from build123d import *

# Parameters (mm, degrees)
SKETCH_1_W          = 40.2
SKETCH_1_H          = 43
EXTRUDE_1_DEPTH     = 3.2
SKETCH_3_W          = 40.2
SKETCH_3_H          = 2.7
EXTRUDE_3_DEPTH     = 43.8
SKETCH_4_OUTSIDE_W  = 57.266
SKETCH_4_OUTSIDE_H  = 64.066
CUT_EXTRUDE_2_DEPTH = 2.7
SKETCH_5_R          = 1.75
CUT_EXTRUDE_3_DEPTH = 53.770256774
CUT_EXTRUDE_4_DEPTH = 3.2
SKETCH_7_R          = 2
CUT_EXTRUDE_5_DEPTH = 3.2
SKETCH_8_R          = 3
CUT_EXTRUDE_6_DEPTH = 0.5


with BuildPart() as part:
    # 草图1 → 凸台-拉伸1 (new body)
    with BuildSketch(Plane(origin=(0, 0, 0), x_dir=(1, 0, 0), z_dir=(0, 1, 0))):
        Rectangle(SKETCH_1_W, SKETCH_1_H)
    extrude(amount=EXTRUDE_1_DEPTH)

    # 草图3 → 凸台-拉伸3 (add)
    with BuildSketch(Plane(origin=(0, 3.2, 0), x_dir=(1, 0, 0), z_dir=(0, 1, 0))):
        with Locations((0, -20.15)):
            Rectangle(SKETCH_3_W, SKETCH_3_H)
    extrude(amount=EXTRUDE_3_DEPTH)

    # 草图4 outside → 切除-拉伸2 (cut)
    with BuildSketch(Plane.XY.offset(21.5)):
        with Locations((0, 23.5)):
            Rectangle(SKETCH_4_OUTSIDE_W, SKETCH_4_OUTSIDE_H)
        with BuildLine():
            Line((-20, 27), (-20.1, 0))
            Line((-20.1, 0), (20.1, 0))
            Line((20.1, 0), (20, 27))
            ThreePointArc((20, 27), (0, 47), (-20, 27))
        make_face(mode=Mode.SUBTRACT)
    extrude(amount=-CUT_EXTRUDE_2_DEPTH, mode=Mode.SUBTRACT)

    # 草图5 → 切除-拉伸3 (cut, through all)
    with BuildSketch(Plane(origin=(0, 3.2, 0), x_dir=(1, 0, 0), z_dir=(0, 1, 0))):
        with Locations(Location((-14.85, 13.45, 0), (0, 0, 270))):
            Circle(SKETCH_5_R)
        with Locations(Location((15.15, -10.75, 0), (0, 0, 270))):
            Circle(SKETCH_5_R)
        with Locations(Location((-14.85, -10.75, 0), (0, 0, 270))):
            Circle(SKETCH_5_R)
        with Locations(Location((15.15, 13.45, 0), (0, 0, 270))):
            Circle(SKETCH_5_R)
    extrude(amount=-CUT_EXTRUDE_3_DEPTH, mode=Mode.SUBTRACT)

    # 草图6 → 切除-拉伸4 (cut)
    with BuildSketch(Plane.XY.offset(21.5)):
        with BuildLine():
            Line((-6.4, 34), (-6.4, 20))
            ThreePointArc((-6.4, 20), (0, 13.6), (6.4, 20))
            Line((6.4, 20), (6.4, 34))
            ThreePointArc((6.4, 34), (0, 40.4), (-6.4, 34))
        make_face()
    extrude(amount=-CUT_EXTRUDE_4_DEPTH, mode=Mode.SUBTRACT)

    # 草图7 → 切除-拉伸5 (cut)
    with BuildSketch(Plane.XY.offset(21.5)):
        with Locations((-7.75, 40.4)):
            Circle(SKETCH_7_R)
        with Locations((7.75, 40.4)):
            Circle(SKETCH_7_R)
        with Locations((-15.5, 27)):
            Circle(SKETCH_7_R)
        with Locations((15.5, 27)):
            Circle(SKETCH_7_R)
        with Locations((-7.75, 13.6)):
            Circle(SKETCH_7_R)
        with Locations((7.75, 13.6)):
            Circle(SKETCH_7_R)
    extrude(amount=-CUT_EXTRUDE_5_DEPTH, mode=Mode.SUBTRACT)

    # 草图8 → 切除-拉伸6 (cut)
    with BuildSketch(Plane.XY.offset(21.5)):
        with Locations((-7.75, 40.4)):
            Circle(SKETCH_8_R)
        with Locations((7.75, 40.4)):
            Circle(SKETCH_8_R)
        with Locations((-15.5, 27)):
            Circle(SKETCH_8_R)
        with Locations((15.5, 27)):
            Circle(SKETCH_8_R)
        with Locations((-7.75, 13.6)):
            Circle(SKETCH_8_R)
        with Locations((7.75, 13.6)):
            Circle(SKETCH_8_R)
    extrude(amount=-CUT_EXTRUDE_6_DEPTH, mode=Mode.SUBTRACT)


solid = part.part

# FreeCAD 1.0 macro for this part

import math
import FreeCAD as App
import Part
import Sketcher

V = App.Vector
Q = App.Units.Quantity


def add_polygon(sketch, points):
    """Adds a closed chain of lines whose ends are joined by coincident constraints."""
    first, n = sketch.GeometryCount, len(points)
    for a, b in zip(points, points[1:] + points[:1]):
        sketch.addGeometry(Part.LineSegment(App.Vector(*a, 0), App.Vector(*b, 0)), False)
    for i in range(n):
        sketch.addConstraint(Sketcher.Constraint("Coincident", first + i, 2, first + (i + 1) % n, 1))

doc = App.newDocument("Part")
body = doc.addObject("PartDesign::Body", "Body")

# Sketch on XZ plane
sketch1 = body.newObject("Sketcher::SketchObject", "Sketch")
sketch1.AttachmentSupport = (doc.getObject("XZ_Plane"), [""])
sketch1.MapMode = "FlatFace"
add_polygon(sketch1, [(-20.1, -21.5), (-20.1, 21.5), (20.1, 21.5), (20.1, -21.5)])  # lines 0-3
sketch1.addConstraint(Sketcher.Constraint("Vertical", 0))
sketch1.addConstraint(Sketcher.Constraint("Horizontal", 1))
sketch1.addConstraint(Sketcher.Constraint("Vertical", 2))
sketch1.addConstraint(Sketcher.Constraint("Horizontal", 3))
sketch1.addConstraint(Sketcher.Constraint("Symmetric", 0, 2, 2, 2, -1, 1))
sketch1.addConstraint(Sketcher.Constraint("DistanceY", 0, 1, 0, 2, Q("43 mm")))
sketch1.addConstraint(Sketcher.Constraint("DistanceX", 1, 1, 1, 2, Q("40.2 mm")))
pad1 = body.newObject("PartDesign::Pad", "Pad")
pad1.Profile = sketch1
pad1.Length = 3.2
pad1.Reversed = True

# Sketch on XZ plane
sketch2 = body.newObject("Sketcher::SketchObject", "Sketch001")
sketch2.AttachmentSupport = (doc.getObject("XZ_Plane"), [""])
sketch2.MapMode = "FlatFace"
sketch2.AttachmentOffset = App.Placement(V(0, 0, -3.2), App.Rotation())
add_polygon(sketch2, [(-20.1, 18.8), (-20.1, 21.5), (20.1, 21.5), (20.1, 18.8)])  # lines 0-3
sketch2.addConstraint(Sketcher.Constraint("Vertical", 0))
sketch2.addConstraint(Sketcher.Constraint("Horizontal", 1))
sketch2.addConstraint(Sketcher.Constraint("Vertical", 2))
sketch2.addConstraint(Sketcher.Constraint("Horizontal", 3))
sketch2.addConstraint(Sketcher.Constraint("DistanceX", 1, 1, 1, 2, Q("40.2 mm")))
sketch2.addConstraint(Sketcher.Constraint("DistanceY", 0, 1, 0, 2, Q("2.7 mm")))
sketch2.addConstraint(Sketcher.Constraint("DistanceX", 0, 2, -1, 1, Q("20.1 mm")))
sketch2.addConstraint(Sketcher.Constraint("DistanceY", -1, 1, 0, 2, Q("21.5 mm")))
pad2 = body.newObject("PartDesign::Pad", "Pad001")
pad2.Profile = sketch2
pad2.Length = 43.8
pad2.Reversed = True

# Sketch on XY plane
sketch3 = body.newObject("Sketcher::SketchObject", "Sketch002")
sketch3.AttachmentSupport = (doc.getObject("XY_Plane"), [""])
sketch3.MapMode = "FlatFace"
sketch3.AttachmentOffset = App.Placement(V(0, 0, 21.5), App.Rotation())
add_polygon(sketch3, [(-28.633, 55.533), (-28.633, -8.533), (28.633, -8.533), (28.633, 55.533)])  # lines 0-3
sketch3.addGeometry(Part.LineSegment(V(-20.1, 0, 0), V(-20, 27, 0)), False)  # 4
sketch3.addGeometry(Part.ArcOfCircle(Part.Circle(V(0, 27, 0), V(0, 0, 1), 20), math.radians(0), math.radians(180)), False)  # 5
sketch3.addGeometry(Part.LineSegment(V(20, 27, 0), V(20.1, 0, 0)), False)  # 6
sketch3.addGeometry(Part.LineSegment(V(20.1, 0, 0), V(-20.1, 0, 0)), False)  # 7
sketch3.addConstraint(Sketcher.Constraint("Coincident", 4, 2, 5, 2))
sketch3.addConstraint(Sketcher.Constraint("Coincident", 5, 1, 6, 1))
sketch3.addConstraint(Sketcher.Constraint("Coincident", 6, 2, 7, 1))
sketch3.addConstraint(Sketcher.Constraint("Coincident", 7, 2, 4, 1))
sketch3.addConstraint(Sketcher.Constraint("Vertical", 0))
sketch3.addConstraint(Sketcher.Constraint("Horizontal", 1))
sketch3.addConstraint(Sketcher.Constraint("Vertical", 2))
sketch3.addConstraint(Sketcher.Constraint("Horizontal", 3))
sketch3.addConstraint(Sketcher.Constraint("Horizontal", 7))
sketch3.addConstraint(Sketcher.Constraint("Symmetric", 6, 2, 7, 2, -1, 1))
sketch3.addConstraint(Sketcher.Constraint("Symmetric", 4, 2, 5, 1, -2))
sketch3.addConstraint(Sketcher.Constraint("Horizontal", 5, 3, 4, 2))
sketch3.addConstraint(Sketcher.Constraint("Radius", 5, Q("20 mm")))
sketch3.addConstraint(Sketcher.Constraint("DistanceX", 7, 2, 7, 1, Q("40.2 mm")))
sketch3.addConstraint(Sketcher.Constraint("DistanceY", -1, 1, 5, 3, Q("27 mm")))
sketch3.addConstraint(Sketcher.Constraint("DistanceX", 1, 1, 1, 2, Q("57.266 mm")))
sketch3.addConstraint(Sketcher.Constraint("DistanceY", 0, 2, 0, 1, Q("64.066 mm")))
sketch3.addConstraint(Sketcher.Constraint("DistanceX", 0, 2, -1, 1, Q("28.633 mm")))
sketch3.addConstraint(Sketcher.Constraint("DistanceY", 0, 2, -1, 1, Q("8.533 mm")))
pocket1 = body.newObject("PartDesign::Pocket", "Pocket")
pocket1.Profile = sketch3
pocket1.Length = 2.7

# Sketch on XZ plane
sketch4 = body.newObject("Sketcher::SketchObject", "Sketch003")
sketch4.AttachmentSupport = (doc.getObject("XZ_Plane"), [""])
sketch4.MapMode = "FlatFace"
sketch4.AttachmentOffset = App.Placement(V(0, 0, -3.2), App.Rotation())
sketch4.addGeometry(Part.Circle(V(-14.85, -13.45, 0), V(0, 0, 1), 1.75), False)
sketch4.addGeometry(Part.Circle(V(15.15, 10.75, 0), V(0, 0, 1), 1.75), False)
sketch4.addGeometry(Part.Circle(V(-14.85, 10.75, 0), V(0, 0, 1), 1.75), False)
sketch4.addGeometry(Part.Circle(V(15.15, -13.45, 0), V(0, 0, 1), 1.75), False)
sketch4.addConstraint(Sketcher.Constraint("Equal", 0, 1))
sketch4.addConstraint(Sketcher.Constraint("Equal", 1, 2))
sketch4.addConstraint(Sketcher.Constraint("Equal", 2, 3))
sketch4.addConstraint(Sketcher.Constraint("Horizontal", 1, 3, 2, 3))
sketch4.addConstraint(Sketcher.Constraint("Horizontal", 0, 3, 3, 3))
sketch4.addConstraint(Sketcher.Constraint("Vertical", 0, 3, 2, 3))
sketch4.addConstraint(Sketcher.Constraint("Vertical", 1, 3, 3, 3))
sketch4.addConstraint(Sketcher.Constraint("Diameter", 0, Q("3.5 mm")))
sketch4.addConstraint(Sketcher.Constraint("DistanceX", 0, 3, 1, 3, Q("30 mm")))
sketch4.addConstraint(Sketcher.Constraint("DistanceY", 0, 3, 1, 3, Q("24.2 mm")))
sketch4.addConstraint(Sketcher.Constraint("DistanceX", 0, 3, -1, 1, Q("14.85 mm")))
sketch4.addConstraint(Sketcher.Constraint("DistanceY", 0, 3, -1, 1, Q("13.45 mm")))
pocket2 = body.newObject("PartDesign::Pocket", "Pocket001")
pocket2.Profile = sketch4
pocket2.Type = "ThroughAll"
pocket2.Reversed = True

# Sketch on XY plane
sketch5 = body.newObject("Sketcher::SketchObject", "Sketch004")
sketch5.AttachmentSupport = (doc.getObject("XY_Plane"), [""])
sketch5.MapMode = "FlatFace"
sketch5.AttachmentOffset = App.Placement(V(0, 0, 21.5), App.Rotation())
sketch5.addGeometry(Part.LineSegment(V(-6.4, 34, 0), V(-6.4, 20, 0)), False)
sketch5.addGeometry(Part.ArcOfCircle(Part.Circle(V(0, 20, 0), V(0, 0, 1), 6.4), math.radians(180), math.radians(360)), False)
sketch5.addGeometry(Part.LineSegment(V(6.4, 20, 0), V(6.4, 34, 0)), False)
sketch5.addGeometry(Part.ArcOfCircle(Part.Circle(V(0, 34, 0), V(0, 0, 1), 6.4), math.radians(0), math.radians(180)), False)
sketch5.addConstraint(Sketcher.Constraint("Tangent", 0, 2, 1, 1))
sketch5.addConstraint(Sketcher.Constraint("Tangent", 1, 2, 2, 1))
sketch5.addConstraint(Sketcher.Constraint("Tangent", 2, 2, 3, 1))
sketch5.addConstraint(Sketcher.Constraint("Tangent", 3, 2, 0, 1))
sketch5.addConstraint(Sketcher.Constraint("Vertical", 0))
sketch5.addConstraint(Sketcher.Constraint("Vertical", 2))
sketch5.addConstraint(Sketcher.Constraint("PointOnObject", 1, 3, -2))
sketch5.addConstraint(Sketcher.Constraint("Radius", 1, Q("6.4 mm")))
sketch5.addConstraint(Sketcher.Constraint("DistanceY", 0, 2, 0, 1, Q("14 mm")))
sketch5.addConstraint(Sketcher.Constraint("DistanceY", -1, 1, 1, 3, Q("20 mm")))
pocket3 = body.newObject("PartDesign::Pocket", "Pocket002")
pocket3.Profile = sketch5
pocket3.Length = 3.2

# Sketch on XY plane
sketch6 = body.newObject("Sketcher::SketchObject", "Sketch005")
sketch6.AttachmentSupport = (doc.getObject("XY_Plane"), [""])
sketch6.MapMode = "FlatFace"
sketch6.AttachmentOffset = App.Placement(V(0, 0, 21.5), App.Rotation())
sketch6.addGeometry(Part.Circle(V(-7.75, 40.4, 0), V(0, 0, 1), 2), False)
sketch6.addGeometry(Part.Circle(V(7.75, 40.4, 0), V(0, 0, 1), 2), False)
sketch6.addGeometry(Part.Circle(V(-15.5, 27, 0), V(0, 0, 1), 2), False)
sketch6.addGeometry(Part.Circle(V(15.5, 27, 0), V(0, 0, 1), 2), False)
sketch6.addGeometry(Part.Circle(V(-7.75, 13.6, 0), V(0, 0, 1), 2), False)
sketch6.addGeometry(Part.Circle(V(7.75, 13.6, 0), V(0, 0, 1), 2), False)
sketch6.addConstraint(Sketcher.Constraint("Equal", 0, 1))
sketch6.addConstraint(Sketcher.Constraint("Equal", 1, 2))
sketch6.addConstraint(Sketcher.Constraint("Equal", 2, 3))
sketch6.addConstraint(Sketcher.Constraint("Equal", 3, 4))
sketch6.addConstraint(Sketcher.Constraint("Equal", 4, 5))
sketch6.addConstraint(Sketcher.Constraint("Symmetric", 0, 3, 1, 3, -2))
sketch6.addConstraint(Sketcher.Constraint("Symmetric", 2, 3, 3, 3, -2))
sketch6.addConstraint(Sketcher.Constraint("Symmetric", 4, 3, 5, 3, -2))
sketch6.addConstraint(Sketcher.Constraint("Vertical", 0, 3, 4, 3))
sketch6.addConstraint(Sketcher.Constraint("Diameter", 0, Q("4 mm")))
sketch6.addConstraint(Sketcher.Constraint("DistanceY", -1, 1, 2, 3, Q("27 mm")))
sketch6.addConstraint(Sketcher.Constraint("DistanceX", 2, 3, 3, 3, Q("31 mm")))
sketch6.addConstraint(Sketcher.Constraint("DistanceY", -1, 1, 0, 3, Q("40.4 mm")))
sketch6.addConstraint(Sketcher.Constraint("DistanceY", -1, 1, 4, 3, Q("13.6 mm")))
sketch6.addConstraint(Sketcher.Constraint("DistanceX", 0, 3, 1, 3, Q("15.5 mm")))
pocket4 = body.newObject("PartDesign::Pocket", "Pocket003")
pocket4.Profile = sketch6
pocket4.Length = 3.2

# Sketch on XY plane
sketch7 = body.newObject("Sketcher::SketchObject", "Sketch006")
sketch7.AttachmentSupport = (doc.getObject("XY_Plane"), [""])
sketch7.MapMode = "FlatFace"
sketch7.AttachmentOffset = App.Placement(V(0, 0, 21.5), App.Rotation())
sketch7.addGeometry(Part.Circle(V(-7.75, 40.4, 0), V(0, 0, 1), 3), False)
sketch7.addGeometry(Part.Circle(V(7.75, 40.4, 0), V(0, 0, 1), 3), False)
sketch7.addGeometry(Part.Circle(V(-15.5, 27, 0), V(0, 0, 1), 3), False)
sketch7.addGeometry(Part.Circle(V(15.5, 27, 0), V(0, 0, 1), 3), False)
sketch7.addGeometry(Part.Circle(V(-7.75, 13.6, 0), V(0, 0, 1), 3), False)
sketch7.addGeometry(Part.Circle(V(7.75, 13.6, 0), V(0, 0, 1), 3), False)
sketch7.addConstraint(Sketcher.Constraint("Equal", 0, 1))
sketch7.addConstraint(Sketcher.Constraint("Equal", 1, 2))
sketch7.addConstraint(Sketcher.Constraint("Equal", 2, 3))
sketch7.addConstraint(Sketcher.Constraint("Equal", 3, 4))
sketch7.addConstraint(Sketcher.Constraint("Equal", 4, 5))
sketch7.addConstraint(Sketcher.Constraint("Symmetric", 0, 3, 1, 3, -2))
sketch7.addConstraint(Sketcher.Constraint("Symmetric", 2, 3, 3, 3, -2))
sketch7.addConstraint(Sketcher.Constraint("Symmetric", 4, 3, 5, 3, -2))
sketch7.addConstraint(Sketcher.Constraint("Vertical", 0, 3, 4, 3))
sketch7.addConstraint(Sketcher.Constraint("Diameter", 0, Q("6 mm")))
sketch7.addConstraint(Sketcher.Constraint("DistanceY", -1, 1, 2, 3, Q("27 mm")))
sketch7.addConstraint(Sketcher.Constraint("DistanceX", 2, 3, 3, 3, Q("31 mm")))
sketch7.addConstraint(Sketcher.Constraint("DistanceY", -1, 1, 0, 3, Q("40.4 mm")))
sketch7.addConstraint(Sketcher.Constraint("DistanceY", -1, 1, 4, 3, Q("13.6 mm")))
sketch7.addConstraint(Sketcher.Constraint("DistanceX", 0, 3, 1, 3, Q("15.5 mm")))
pocket5 = body.newObject("PartDesign::Pocket", "Pocket004")
pocket5.Profile = sketch7
pocket5.Length = 0.5

doc.recompute()
